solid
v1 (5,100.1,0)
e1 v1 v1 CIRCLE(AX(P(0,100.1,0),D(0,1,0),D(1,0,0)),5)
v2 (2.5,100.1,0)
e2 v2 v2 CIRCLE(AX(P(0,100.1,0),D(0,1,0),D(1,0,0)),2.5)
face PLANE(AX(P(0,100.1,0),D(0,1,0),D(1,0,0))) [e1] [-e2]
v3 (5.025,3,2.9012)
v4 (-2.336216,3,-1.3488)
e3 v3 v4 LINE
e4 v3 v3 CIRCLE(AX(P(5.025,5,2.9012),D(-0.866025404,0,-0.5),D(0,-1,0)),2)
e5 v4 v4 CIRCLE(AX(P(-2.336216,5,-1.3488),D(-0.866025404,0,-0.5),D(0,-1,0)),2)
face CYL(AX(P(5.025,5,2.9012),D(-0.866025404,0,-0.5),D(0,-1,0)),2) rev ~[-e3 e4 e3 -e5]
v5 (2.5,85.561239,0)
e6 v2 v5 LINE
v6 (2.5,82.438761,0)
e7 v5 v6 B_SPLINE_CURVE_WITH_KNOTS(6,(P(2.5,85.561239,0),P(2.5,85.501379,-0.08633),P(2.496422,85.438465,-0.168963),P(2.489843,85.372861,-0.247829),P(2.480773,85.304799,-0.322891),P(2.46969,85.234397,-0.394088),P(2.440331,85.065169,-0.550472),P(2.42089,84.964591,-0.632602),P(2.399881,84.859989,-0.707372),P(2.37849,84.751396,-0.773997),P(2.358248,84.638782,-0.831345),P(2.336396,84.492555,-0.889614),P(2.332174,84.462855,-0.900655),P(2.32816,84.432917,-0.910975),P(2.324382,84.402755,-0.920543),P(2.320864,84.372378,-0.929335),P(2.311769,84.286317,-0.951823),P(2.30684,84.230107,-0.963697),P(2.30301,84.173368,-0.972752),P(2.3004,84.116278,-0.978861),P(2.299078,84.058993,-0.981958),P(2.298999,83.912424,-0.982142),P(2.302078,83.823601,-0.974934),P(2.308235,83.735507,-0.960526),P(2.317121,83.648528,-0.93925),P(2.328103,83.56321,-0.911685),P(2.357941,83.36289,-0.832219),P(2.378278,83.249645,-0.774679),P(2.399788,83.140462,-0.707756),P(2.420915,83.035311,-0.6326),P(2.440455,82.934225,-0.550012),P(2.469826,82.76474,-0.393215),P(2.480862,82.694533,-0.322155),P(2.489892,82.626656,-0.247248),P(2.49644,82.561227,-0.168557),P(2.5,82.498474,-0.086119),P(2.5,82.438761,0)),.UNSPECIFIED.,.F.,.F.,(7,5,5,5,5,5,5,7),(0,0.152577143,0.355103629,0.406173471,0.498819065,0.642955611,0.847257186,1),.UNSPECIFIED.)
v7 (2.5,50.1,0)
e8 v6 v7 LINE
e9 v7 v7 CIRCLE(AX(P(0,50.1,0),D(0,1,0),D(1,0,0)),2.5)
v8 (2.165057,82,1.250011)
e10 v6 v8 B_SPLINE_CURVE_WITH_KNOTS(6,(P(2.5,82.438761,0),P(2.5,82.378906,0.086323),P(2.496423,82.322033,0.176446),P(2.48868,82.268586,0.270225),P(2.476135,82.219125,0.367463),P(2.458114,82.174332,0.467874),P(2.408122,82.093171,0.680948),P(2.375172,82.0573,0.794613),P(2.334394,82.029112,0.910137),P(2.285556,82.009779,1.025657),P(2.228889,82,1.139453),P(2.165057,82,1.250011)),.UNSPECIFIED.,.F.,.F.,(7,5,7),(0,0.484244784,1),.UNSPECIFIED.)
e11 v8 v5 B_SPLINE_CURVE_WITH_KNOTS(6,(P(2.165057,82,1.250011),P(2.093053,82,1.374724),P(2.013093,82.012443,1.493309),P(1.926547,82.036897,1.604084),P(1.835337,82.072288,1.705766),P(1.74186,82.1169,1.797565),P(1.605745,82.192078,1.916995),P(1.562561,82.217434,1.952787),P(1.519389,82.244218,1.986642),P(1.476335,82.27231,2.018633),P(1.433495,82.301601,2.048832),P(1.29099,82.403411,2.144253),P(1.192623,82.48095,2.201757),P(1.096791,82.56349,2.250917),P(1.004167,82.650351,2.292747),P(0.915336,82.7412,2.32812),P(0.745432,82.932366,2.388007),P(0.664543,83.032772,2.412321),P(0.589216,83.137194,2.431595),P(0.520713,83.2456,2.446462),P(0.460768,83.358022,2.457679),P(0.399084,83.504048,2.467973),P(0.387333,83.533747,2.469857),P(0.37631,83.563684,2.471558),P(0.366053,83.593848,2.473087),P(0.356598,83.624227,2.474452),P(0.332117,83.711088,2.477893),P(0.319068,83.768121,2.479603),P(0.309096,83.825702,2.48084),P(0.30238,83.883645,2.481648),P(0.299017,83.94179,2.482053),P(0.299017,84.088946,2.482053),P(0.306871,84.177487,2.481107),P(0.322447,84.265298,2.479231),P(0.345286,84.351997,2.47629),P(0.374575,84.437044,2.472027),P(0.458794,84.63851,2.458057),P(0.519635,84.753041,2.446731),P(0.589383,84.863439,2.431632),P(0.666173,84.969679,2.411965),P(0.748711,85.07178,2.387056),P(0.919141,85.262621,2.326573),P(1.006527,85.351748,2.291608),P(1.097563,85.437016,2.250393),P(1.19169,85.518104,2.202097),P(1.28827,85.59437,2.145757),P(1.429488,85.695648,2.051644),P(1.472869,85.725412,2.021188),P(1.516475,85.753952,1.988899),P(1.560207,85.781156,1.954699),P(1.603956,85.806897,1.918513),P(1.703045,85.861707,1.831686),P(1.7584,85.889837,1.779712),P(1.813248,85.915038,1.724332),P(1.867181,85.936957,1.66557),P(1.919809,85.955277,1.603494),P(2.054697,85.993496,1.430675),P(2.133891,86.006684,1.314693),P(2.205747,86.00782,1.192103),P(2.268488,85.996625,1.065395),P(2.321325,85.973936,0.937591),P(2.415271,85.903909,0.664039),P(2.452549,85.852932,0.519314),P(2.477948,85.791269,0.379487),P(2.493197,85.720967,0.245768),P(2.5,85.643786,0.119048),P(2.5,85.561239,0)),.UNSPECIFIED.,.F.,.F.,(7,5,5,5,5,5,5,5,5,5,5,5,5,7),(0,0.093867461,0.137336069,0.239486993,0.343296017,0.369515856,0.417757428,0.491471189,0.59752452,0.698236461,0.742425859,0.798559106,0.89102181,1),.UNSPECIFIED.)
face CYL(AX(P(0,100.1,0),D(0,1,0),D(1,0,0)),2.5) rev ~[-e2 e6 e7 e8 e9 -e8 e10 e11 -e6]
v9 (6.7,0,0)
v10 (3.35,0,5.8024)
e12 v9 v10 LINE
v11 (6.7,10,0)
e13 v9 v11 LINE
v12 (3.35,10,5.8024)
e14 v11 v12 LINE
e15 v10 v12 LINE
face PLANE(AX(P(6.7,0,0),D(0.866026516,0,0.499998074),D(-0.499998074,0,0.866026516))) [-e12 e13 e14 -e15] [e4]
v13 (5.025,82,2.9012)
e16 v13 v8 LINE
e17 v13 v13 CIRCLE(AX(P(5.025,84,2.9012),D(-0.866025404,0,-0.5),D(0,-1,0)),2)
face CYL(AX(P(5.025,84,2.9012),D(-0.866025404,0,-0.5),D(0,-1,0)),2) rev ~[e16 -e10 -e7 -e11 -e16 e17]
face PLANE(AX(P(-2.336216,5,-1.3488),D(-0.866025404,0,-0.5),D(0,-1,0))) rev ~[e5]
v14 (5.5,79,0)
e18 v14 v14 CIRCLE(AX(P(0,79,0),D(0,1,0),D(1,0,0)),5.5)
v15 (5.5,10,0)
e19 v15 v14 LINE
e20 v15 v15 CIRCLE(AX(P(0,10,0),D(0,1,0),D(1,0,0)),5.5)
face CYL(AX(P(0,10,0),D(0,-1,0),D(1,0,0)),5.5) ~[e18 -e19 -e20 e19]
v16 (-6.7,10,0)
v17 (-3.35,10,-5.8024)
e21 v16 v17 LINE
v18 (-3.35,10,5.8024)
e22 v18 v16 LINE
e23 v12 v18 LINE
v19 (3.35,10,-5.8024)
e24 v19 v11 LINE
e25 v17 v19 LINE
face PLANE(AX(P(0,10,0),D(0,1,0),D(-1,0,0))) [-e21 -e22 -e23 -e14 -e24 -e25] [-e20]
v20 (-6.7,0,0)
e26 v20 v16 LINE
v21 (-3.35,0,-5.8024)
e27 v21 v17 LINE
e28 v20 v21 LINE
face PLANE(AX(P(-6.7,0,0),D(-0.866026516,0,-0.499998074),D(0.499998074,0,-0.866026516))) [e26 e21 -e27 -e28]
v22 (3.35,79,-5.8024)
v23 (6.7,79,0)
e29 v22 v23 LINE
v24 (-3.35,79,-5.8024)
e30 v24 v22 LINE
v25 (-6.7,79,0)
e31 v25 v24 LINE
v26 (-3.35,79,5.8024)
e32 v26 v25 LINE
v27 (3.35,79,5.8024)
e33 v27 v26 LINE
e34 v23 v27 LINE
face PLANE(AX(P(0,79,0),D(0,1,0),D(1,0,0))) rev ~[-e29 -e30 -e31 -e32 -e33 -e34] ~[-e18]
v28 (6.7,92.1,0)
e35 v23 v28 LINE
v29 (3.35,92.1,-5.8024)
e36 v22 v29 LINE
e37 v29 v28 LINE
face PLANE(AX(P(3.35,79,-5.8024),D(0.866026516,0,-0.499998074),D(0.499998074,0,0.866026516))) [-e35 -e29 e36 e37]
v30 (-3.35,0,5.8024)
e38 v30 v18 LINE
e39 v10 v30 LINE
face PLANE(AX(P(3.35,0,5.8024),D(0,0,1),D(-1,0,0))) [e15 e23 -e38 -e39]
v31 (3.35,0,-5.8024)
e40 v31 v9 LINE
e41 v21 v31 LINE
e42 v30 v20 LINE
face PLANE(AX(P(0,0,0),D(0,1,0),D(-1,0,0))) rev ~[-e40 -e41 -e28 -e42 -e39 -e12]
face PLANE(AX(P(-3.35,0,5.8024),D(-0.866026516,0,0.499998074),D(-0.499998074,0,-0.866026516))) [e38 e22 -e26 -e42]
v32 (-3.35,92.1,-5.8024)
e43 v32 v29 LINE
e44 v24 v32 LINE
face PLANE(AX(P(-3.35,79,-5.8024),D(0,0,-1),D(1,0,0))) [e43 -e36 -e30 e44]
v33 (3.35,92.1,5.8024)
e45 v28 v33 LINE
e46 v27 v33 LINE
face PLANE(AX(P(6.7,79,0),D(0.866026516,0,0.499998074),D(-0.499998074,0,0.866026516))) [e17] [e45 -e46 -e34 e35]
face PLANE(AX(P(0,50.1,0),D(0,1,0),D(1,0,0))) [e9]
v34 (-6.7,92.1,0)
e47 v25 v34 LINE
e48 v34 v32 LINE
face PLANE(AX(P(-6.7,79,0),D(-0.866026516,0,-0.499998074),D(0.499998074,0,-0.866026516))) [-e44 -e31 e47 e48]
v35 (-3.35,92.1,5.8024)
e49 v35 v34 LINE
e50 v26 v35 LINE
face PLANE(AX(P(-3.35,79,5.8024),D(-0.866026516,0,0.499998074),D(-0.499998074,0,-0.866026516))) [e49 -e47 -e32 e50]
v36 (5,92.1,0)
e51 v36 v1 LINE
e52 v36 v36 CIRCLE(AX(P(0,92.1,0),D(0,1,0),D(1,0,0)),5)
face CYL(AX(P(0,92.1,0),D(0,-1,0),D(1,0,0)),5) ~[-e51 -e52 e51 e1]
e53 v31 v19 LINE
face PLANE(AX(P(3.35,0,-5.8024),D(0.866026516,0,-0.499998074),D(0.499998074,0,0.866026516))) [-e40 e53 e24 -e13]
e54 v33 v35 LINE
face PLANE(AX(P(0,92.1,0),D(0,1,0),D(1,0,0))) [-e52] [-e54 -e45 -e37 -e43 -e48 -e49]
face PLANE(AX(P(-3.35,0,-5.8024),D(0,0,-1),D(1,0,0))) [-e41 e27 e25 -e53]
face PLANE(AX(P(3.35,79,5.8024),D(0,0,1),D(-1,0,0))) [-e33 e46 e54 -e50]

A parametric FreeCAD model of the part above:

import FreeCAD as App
import Part
import Sketcher

V = App.Vector
Q = App.Units.Quantity

doc = App.newDocument("Part")
params = doc.addObject("Spreadsheet::Sheet", "Params")
for row, (alias, value) in enumerate([
    ("sketch1_width", "6.7 mm"),
    ("sketch1_length", "6.7 mm"),
    ("pad1_length", "10 mm"),
    ("sketch2_diameter", "11 mm"),
    ("pad2_length", "69 mm"),
    ("sketch3_width", "6.7 mm"),
    ("sketch3_length", "6.7 mm"),
    ("pad3_length", "13.1 mm"),
    ("sketch4_diameter", "10 mm"),
    ("pad4_length", "8 mm"),
    ("sketch5_diameter", "5 mm"),
    ("pocket1_length", "50 mm"),
    ("sketch6_diameter", "4 mm"),
    ("hole_diameter", "4 mm"),
    ("hole_depth", "8.5 mm"),
    ("sketch7_diameter", "4 mm"),
    ("hole2_diameter", "4 mm"),
    ("hole2_depth", "5 mm"),
], start=1):
    params.set(f"A{row}", alias)
    params.set(f"B{row}", "=" + value)
    params.setAlias(f"B{row}", alias)

body = doc.addObject("PartDesign::Body", "Body")

# Sketch on XZ plane
sketch1 = doc.addObject("Sketcher::SketchObject", "Sketch")
body.addObject(sketch1)
sketch1.AttachmentSupport = (doc.XZ_Plane, [""])
sketch1.MapMode = "FlatFace"
sketch1.addGeometry([
    Part.LineSegment(V(-3, -6, 0), V(-7, 0, 0)),  # 0
    Part.LineSegment(V(-7, 0, 0), V(-3, 6, 0)),  # 1
    Part.LineSegment(V(-3, 6, 0), V(3, 6, 0)),  # 2
    Part.LineSegment(V(3, 6, 0), V(7, 0, 0)),  # 3
    Part.LineSegment(V(7, 0, 0), V(3, -6, 0)),  # 4
    Part.LineSegment(V(3, -6, 0), V(-3, -6, 0)),  # 5
], False)
sketch1.addConstraint([
    Sketcher.Constraint("Coincident", 0, 2, 1, 1),
    Sketcher.Constraint("Coincident", 1, 2, 2, 1),
    Sketcher.Constraint("Coincident", 2, 2, 3, 1),
    Sketcher.Constraint("Coincident", 3, 2, 4, 1),
    Sketcher.Constraint("Coincident", 4, 2, 5, 1),
    Sketcher.Constraint("Coincident", 5, 2, 0, 1),
    Sketcher.Constraint("Horizontal", 2),
    Sketcher.Constraint("Horizontal", 5),
    Sketcher.Constraint("Symmetric", 0, 2, 3, 2, -1, 1),
    Sketcher.Constraint("Symmetric", 1, 2, 4, 2, -1, 1),
    Sketcher.Constraint("PointOnObject", 0, 2, -1),
    Sketcher.Constraint("Parallel", 0, 3),
    Sketcher.Constraint("Vertical", 2, 2, 4, 2),
    Sketcher.Constraint("DistanceX", 2, 1, 2, 2, 6.7),
    Sketcher.Constraint("Distance", 0, 6.7),
    Sketcher.Constraint("DistanceX", 0, 2, -1, 1, 6.7),
])
sketch1.setExpression("Constraints[13]", "Params.sketch1_width")
sketch1.setExpression("Constraints[14]", "Params.sketch1_length")
pad1 = doc.addObject("PartDesign::Pad", "Pad")
body.addObject(pad1)
pad1.Profile = sketch1
pad1.setExpression("Length", "Params.pad1_length")
pad1.Reversed = True

# Sketch on XZ plane
sketch2 = doc.addObject("Sketcher::SketchObject", "Sketch001")
body.addObject(sketch2)
sketch2.AttachmentSupport = (doc.XZ_Plane, [""])
sketch2.MapMode = "FlatFace"
sketch2.AttachmentOffset = App.Placement(V(0, 0, -10), App.Rotation())
sketch2.addGeometry(Part.Circle(V(0, 0, 0), V(0, 0, 1), 6), False)
sketch2.addConstraint([
    Sketcher.Constraint("Coincident", 0, 3, -1, 1),
    Sketcher.Constraint("Diameter", 0, 11.0),
])
sketch2.setExpression("Constraints[1]", "Params.sketch2_diameter")
pad2 = doc.addObject("PartDesign::Pad", "Pad001")
body.addObject(pad2)
pad2.Profile = sketch2
pad2.setExpression("Length", "Params.pad2_length")
pad2.Reversed = True

# Sketch on XZ plane
sketch3 = doc.addObject("Sketcher::SketchObject", "Sketch002")
body.addObject(sketch3)
sketch3.AttachmentSupport = (doc.XZ_Plane, [""])
sketch3.MapMode = "FlatFace"
sketch3.AttachmentOffset = App.Placement(V(0, 0, -79), App.Rotation())
sketch3.addGeometry([
    Part.LineSegment(V(-3, -6, 0), V(-7, 0, 0)),  # 0
    Part.LineSegment(V(-7, 0, 0), V(-3, 6, 0)),  # 1
    Part.LineSegment(V(-3, 6, 0), V(3, 6, 0)),  # 2
    Part.LineSegment(V(3, 6, 0), V(7, 0, 0)),  # 3
    Part.LineSegment(V(7, 0, 0), V(3, -6, 0)),  # 4
    Part.LineSegment(V(3, -6, 0), V(-3, -6, 0)),  # 5
], False)
sketch3.addConstraint([
    Sketcher.Constraint("Coincident", 0, 2, 1, 1),
    Sketcher.Constraint("Coincident", 1, 2, 2, 1),
    Sketcher.Constraint("Coincident", 2, 2, 3, 1),
    Sketcher.Constraint("Coincident", 3, 2, 4, 1),
    Sketcher.Constraint("Coincident", 4, 2, 5, 1),
    Sketcher.Constraint("Coincident", 5, 2, 0, 1),
    Sketcher.Constraint("Horizontal", 2),
    Sketcher.Constraint("Horizontal", 5),
    Sketcher.Constraint("Symmetric", 0, 2, 3, 2, -1, 1),
    Sketcher.Constraint("Symmetric", 1, 2, 4, 2, -1, 1),
    Sketcher.Constraint("PointOnObject", 0, 2, -1),
    Sketcher.Constraint("Parallel", 0, 3),
    Sketcher.Constraint("Vertical", 2, 2, 4, 2),
    Sketcher.Constraint("Angle", 0, Q("119.9999 deg")),
    Sketcher.Constraint("DistanceX", 2, 1, 2, 2, 6.7),
    Sketcher.Constraint("Distance", 0, 6.7),
])
sketch3.setExpression("Constraints[14]", "Params.sketch3_width")
sketch3.setExpression("Constraints[15]", "Params.sketch3_length")
pad3 = doc.addObject("PartDesign::Pad", "Pad002")
body.addObject(pad3)
pad3.Profile = sketch3
pad3.setExpression("Length", "Params.pad3_length")
pad3.Reversed = True

# Sketch on XZ plane
sketch4 = doc.addObject("Sketcher::SketchObject", "Sketch003")
body.addObject(sketch4)
sketch4.AttachmentSupport = (doc.XZ_Plane, [""])
sketch4.MapMode = "FlatFace"
sketch4.AttachmentOffset = App.Placement(V(0, 0, -92.1), App.Rotation())
sketch4.addGeometry(Part.Circle(V(0, 0, 0), V(0, 0, 1), 5), False)
sketch4.addConstraint([
    Sketcher.Constraint("Coincident", 0, 3, -1, 1),
    Sketcher.Constraint("Diameter", 0, 10.0),
])
sketch4.setExpression("Constraints[1]", "Params.sketch4_diameter")
pad4 = doc.addObject("PartDesign::Pad", "Pad003")
body.addObject(pad4)
pad4.Profile = sketch4
pad4.setExpression("Length", "Params.pad4_length")
pad4.Reversed = True

# Sketch on XZ plane
sketch5 = doc.addObject("Sketcher::SketchObject", "Sketch004")
body.addObject(sketch5)
sketch5.AttachmentSupport = (doc.XZ_Plane, [""])
sketch5.MapMode = "FlatFace"
sketch5.AttachmentOffset = App.Placement(V(0, 0, -100.1), App.Rotation())
sketch5.addGeometry(Part.Circle(V(0, 0, 0), V(0, 0, 1), 2.5), False)
sketch5.addConstraint([
    Sketcher.Constraint("Coincident", 0, 3, -1, 1),
    Sketcher.Constraint("Diameter", 0, 5.0),
])
sketch5.setExpression("Constraints[1]", "Params.sketch5_diameter")
pocket1 = doc.addObject("PartDesign::Pocket", "Pocket")
body.addObject(pocket1)
pocket1.Profile = sketch5
pocket1.setExpression("Length", "Params.pocket1_length")
pocket1.Reversed = True

# Sketch on an angled plane
sketch6 = doc.addObject("Sketcher::SketchObject", "Sketch005")
body.addObject(sketch6)
sketch6.Placement = App.Placement(V(5.025006, 0, 2.901189), App.Rotation(V(0.5, 0, -0.866025404), V(0, 1, 0), V(0.866025404, 0, 0.5), "ZXY"))
sketch6.addGeometry(Part.Circle(V(0, 5, 0), V(0, 0, 1), 2), False)
sketch6.addConstraint([
    Sketcher.Constraint("PointOnObject", 0, 3, -2),
    Sketcher.Constraint("Diameter", 0, 4.0),
    Sketcher.Constraint("DistanceY", -1, 1, 0, 3, 5.0),
])
sketch6.setExpression("Constraints[1]", "Params.sketch6_diameter")
doc.recompute()
hole = doc.addObject("PartDesign::Hole", "Hole")
body.addObject(hole)
hole.Profile = sketch6
hole.ThreadType = "None"
hole.setExpression("Diameter", "Params.hole_diameter")
hole.DepthType = "Dimension"
hole.setExpression("Depth", "Params.hole_depth")
hole.DrillPoint = "Flat"

# Sketch on an angled plane
sketch7 = doc.addObject("Sketcher::SketchObject", "Sketch006")
body.addObject(sketch7)
sketch7.Placement = App.Placement(V(5.025006, 0, 2.901189), App.Rotation(V(0.5, 0, -0.866025404), V(0, 1, 0), V(0.866025404, 0, 0.5), "ZXY"))
sketch7.addGeometry(Part.Circle(V(0, 84, 0), V(0, 0, 1), 2), False)
sketch7.addConstraint([
    Sketcher.Constraint("PointOnObject", 0, 3, -2),
    Sketcher.Constraint("Diameter", 0, 4.0),
    Sketcher.Constraint("DistanceY", -1, 1, 0, 3, 84.0),
])
sketch7.setExpression("Constraints[1]", "Params.sketch7_diameter")
doc.recompute()
hole2 = doc.addObject("PartDesign::Hole", "Hole001")
body.addObject(hole2)
hole2.Profile = sketch7
hole2.ThreadType = "None"
hole2.setExpression("Diameter", "Params.hole2_diameter")
hole2.DepthType = "Dimension"
hole2.setExpression("Depth", "Params.hole2_depth")
hole2.DrillPoint = "Flat"

doc.recompute()
